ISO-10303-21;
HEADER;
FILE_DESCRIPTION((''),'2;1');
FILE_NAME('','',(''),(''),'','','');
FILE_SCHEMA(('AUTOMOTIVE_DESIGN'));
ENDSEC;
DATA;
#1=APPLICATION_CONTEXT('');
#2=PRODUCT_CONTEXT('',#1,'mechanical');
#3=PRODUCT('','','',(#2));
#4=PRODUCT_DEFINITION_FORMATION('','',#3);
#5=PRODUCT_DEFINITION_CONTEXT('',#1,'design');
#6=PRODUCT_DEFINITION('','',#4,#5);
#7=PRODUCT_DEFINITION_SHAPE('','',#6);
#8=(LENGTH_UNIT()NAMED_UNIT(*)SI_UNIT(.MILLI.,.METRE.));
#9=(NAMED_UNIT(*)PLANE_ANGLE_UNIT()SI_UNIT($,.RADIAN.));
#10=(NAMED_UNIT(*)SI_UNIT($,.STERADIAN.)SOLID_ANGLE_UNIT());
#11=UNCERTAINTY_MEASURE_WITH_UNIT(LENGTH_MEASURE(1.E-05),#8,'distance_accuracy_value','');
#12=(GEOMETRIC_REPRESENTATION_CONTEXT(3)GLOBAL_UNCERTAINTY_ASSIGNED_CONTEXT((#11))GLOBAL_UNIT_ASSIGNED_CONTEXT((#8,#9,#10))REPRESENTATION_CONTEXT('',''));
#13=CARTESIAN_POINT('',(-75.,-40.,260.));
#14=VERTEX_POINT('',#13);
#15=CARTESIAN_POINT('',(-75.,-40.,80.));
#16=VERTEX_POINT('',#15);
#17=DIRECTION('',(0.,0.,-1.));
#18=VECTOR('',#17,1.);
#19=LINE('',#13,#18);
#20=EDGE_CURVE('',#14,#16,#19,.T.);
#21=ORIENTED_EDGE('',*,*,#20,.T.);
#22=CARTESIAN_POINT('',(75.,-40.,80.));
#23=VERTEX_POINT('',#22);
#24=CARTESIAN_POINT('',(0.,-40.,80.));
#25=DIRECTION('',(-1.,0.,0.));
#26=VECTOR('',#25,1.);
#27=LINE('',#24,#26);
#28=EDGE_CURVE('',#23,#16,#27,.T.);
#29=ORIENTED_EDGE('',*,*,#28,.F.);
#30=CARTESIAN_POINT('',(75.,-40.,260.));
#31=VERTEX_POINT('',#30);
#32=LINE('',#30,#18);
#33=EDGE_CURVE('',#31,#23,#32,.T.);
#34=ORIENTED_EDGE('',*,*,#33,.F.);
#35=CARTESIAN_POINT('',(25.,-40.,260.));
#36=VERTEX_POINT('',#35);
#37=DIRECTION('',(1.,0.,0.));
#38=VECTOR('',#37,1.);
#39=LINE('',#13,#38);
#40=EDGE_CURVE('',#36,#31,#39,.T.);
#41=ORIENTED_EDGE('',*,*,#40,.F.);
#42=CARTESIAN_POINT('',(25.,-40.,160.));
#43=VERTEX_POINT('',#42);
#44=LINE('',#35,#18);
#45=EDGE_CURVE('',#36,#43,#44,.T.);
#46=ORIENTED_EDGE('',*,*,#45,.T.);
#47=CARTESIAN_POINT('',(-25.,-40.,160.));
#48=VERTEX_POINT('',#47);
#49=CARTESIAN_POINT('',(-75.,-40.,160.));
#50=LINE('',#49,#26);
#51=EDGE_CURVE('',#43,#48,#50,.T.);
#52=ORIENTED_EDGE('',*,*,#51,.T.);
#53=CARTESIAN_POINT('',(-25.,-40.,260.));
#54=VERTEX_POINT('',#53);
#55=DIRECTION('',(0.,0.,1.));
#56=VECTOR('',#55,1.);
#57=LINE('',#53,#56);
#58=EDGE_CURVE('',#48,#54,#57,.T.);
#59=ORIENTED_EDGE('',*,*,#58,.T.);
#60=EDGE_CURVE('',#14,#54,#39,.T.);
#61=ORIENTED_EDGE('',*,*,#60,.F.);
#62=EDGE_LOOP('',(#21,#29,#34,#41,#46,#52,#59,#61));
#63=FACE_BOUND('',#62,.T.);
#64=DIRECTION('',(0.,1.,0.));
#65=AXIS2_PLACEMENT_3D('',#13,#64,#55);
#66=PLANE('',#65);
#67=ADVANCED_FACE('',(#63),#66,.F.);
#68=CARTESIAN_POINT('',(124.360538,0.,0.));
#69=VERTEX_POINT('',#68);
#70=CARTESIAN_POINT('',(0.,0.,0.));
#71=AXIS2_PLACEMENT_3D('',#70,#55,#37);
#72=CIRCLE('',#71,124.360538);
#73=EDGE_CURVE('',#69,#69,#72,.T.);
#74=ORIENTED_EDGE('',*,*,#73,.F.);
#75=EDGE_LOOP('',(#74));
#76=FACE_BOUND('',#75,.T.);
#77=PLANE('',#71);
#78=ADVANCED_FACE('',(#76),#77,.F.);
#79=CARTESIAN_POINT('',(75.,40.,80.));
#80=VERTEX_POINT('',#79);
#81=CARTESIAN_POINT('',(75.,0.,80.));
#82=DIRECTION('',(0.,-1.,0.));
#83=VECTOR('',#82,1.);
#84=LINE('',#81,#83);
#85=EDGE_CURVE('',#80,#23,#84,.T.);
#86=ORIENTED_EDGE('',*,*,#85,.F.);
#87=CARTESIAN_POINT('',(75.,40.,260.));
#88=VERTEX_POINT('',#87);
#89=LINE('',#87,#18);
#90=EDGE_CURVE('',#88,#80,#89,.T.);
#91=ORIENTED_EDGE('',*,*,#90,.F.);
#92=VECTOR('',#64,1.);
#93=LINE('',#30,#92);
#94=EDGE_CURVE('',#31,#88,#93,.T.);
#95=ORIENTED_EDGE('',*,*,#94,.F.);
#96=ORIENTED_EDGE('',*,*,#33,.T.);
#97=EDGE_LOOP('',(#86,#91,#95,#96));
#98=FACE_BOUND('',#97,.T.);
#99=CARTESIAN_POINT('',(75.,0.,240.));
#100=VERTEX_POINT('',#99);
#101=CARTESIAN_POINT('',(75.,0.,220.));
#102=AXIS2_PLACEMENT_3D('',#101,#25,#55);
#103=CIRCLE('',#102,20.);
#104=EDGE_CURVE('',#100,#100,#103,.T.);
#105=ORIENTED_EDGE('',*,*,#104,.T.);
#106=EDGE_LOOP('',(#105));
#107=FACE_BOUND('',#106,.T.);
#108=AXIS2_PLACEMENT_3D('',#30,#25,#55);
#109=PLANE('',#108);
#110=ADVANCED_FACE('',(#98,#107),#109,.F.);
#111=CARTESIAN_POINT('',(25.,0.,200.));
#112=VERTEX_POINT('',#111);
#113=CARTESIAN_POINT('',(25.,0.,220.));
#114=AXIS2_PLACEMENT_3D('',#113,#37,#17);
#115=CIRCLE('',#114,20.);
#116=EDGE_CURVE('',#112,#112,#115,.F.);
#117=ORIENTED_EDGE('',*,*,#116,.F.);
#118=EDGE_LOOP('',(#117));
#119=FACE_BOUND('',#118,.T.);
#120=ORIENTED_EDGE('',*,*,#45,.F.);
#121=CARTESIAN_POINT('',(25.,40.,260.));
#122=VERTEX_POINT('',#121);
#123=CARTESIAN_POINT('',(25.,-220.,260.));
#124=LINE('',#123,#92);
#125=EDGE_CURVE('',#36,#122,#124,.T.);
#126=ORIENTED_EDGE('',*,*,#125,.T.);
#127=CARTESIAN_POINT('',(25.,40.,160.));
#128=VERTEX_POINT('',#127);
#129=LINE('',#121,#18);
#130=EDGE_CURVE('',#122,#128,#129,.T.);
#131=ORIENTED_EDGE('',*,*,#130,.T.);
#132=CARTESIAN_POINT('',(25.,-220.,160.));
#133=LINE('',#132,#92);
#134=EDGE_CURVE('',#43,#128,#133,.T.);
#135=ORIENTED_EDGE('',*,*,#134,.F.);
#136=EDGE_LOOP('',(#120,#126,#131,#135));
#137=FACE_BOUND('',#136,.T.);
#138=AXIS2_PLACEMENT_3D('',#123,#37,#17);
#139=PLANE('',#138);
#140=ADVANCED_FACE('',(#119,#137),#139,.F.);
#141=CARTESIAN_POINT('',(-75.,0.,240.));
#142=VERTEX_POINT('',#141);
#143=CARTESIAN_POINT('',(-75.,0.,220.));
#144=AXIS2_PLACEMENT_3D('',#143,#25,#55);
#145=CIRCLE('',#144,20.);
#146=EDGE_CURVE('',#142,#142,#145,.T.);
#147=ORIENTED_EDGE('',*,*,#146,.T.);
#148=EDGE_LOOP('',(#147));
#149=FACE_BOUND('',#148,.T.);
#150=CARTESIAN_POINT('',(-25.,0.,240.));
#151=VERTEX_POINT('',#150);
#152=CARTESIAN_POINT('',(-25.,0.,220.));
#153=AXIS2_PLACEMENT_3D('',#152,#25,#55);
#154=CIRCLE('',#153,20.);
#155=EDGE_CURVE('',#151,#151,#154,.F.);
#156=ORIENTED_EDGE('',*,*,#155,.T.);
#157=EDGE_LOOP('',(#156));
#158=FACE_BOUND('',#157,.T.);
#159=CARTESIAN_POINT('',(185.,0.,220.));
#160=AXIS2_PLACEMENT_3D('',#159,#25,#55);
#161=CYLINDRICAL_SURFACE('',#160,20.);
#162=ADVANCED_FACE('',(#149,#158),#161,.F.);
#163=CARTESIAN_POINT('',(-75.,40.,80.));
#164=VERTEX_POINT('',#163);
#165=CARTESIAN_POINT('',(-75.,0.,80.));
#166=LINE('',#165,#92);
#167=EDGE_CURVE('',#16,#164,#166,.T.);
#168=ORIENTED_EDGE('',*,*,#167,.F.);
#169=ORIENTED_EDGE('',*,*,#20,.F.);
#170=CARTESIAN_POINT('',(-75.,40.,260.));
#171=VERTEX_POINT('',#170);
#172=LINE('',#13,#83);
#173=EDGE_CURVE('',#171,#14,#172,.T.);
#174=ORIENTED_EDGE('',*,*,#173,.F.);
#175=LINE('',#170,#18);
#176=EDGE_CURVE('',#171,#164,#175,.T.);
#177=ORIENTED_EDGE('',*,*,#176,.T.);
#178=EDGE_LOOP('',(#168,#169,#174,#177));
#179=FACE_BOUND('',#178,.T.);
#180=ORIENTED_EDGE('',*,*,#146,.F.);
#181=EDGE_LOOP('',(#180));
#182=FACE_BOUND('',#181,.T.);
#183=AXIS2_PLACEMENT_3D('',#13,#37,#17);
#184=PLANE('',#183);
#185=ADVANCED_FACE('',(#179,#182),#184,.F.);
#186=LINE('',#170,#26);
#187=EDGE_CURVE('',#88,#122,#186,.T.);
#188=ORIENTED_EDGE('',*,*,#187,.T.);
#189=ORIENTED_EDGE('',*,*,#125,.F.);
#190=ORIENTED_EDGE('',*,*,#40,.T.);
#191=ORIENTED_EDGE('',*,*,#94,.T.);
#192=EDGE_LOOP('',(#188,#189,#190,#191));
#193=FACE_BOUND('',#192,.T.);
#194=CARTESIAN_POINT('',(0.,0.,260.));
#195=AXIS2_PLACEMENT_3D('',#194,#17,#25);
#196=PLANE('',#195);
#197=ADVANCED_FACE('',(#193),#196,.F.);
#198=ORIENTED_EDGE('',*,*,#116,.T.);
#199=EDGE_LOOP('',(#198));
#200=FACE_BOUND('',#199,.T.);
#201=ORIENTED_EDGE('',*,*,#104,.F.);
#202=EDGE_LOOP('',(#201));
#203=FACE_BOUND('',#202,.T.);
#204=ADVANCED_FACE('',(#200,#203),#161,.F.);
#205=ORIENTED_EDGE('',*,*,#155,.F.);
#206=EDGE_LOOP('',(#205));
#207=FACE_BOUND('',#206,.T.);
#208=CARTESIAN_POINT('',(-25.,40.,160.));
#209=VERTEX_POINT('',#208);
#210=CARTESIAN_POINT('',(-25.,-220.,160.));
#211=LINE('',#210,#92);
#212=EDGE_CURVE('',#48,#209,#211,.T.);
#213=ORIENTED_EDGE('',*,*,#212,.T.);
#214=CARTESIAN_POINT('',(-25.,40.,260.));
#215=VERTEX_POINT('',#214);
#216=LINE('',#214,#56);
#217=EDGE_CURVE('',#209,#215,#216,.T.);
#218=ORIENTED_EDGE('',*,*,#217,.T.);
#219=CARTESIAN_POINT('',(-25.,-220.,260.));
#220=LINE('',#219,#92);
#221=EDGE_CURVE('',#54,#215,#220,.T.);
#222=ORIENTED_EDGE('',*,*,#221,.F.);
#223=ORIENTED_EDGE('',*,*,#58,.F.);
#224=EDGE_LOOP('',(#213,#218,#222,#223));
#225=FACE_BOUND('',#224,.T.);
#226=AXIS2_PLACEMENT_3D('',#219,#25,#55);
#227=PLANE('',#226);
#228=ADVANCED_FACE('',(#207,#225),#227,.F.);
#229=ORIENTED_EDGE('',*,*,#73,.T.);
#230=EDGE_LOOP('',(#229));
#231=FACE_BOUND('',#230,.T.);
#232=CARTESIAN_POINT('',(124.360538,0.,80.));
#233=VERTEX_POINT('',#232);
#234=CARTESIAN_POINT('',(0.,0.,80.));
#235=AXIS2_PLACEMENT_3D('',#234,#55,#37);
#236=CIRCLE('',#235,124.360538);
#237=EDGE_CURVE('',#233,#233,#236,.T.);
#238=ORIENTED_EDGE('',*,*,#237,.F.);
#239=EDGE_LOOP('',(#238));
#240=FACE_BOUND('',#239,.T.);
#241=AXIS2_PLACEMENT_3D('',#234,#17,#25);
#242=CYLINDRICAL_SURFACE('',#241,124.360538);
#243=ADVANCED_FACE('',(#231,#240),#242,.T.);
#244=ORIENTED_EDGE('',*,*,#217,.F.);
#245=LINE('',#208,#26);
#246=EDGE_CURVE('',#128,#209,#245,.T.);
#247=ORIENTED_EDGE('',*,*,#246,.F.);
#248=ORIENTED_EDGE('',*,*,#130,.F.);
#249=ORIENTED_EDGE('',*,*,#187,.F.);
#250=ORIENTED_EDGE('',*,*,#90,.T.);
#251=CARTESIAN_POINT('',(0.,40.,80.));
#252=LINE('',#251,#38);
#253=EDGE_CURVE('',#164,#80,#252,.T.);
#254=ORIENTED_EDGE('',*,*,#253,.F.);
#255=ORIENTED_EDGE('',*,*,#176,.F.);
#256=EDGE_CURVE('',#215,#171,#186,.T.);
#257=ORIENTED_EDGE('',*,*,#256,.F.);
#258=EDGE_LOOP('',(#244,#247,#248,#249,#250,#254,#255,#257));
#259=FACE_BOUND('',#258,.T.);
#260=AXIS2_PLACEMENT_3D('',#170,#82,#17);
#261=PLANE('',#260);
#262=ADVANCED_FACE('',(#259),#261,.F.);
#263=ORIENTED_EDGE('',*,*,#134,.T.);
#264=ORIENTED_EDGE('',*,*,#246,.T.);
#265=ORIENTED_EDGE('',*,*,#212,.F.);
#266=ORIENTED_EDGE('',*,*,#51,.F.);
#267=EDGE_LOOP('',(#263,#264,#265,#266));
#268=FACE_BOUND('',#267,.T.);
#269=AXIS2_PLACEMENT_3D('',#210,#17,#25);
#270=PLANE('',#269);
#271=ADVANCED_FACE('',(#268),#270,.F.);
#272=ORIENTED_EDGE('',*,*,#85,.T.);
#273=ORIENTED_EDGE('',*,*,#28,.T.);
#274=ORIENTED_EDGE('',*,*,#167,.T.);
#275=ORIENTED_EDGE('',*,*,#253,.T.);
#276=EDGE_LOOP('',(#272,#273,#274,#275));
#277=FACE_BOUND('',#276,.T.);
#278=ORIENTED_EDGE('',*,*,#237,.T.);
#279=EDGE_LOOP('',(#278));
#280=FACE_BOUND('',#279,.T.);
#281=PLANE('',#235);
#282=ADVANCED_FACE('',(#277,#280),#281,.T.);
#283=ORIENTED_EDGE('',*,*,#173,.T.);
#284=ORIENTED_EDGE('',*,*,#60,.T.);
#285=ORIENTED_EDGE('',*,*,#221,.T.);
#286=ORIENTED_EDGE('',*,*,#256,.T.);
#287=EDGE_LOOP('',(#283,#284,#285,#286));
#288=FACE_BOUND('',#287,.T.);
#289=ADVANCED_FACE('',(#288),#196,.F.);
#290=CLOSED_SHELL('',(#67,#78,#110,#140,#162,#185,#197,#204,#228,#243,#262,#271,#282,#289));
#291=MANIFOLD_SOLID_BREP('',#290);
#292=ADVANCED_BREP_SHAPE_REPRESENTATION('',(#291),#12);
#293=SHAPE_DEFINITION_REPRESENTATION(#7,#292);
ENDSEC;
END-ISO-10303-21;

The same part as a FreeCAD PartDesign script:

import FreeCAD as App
import Part
import Sketcher
Q = App.Units.Quantity

doc = App.newDocument("Part")
body = doc.addObject("PartDesign::Body", "Body")

sketch1 = body.newObject("Sketcher::SketchObject", "Sketch")
sketch1.AttachmentSupport = (doc.getObject("XY_Plane"), [""])
sketch1.MapMode = "FlatFace"
sketch1.addGeometry(Part.Circle(App.Vector(0, 0, 0), App.Vector(0, 0, 1), 124), False)
sketch1.addConstraint(Sketcher.Constraint("Coincident", 0, 3, -1, 1))
sketch1.addConstraint(Sketcher.Constraint("Diameter", 0, Q("248.721076 mm")))
pad1 = body.newObject("PartDesign::Pad", "Pad")
pad1.Profile = sketch1
pad1.Length = 80

sketch2 = body.newObject("Sketcher::SketchObject", "Sketch001")
sketch2.AttachmentSupport = (doc.getObject("XY_Plane"), [""])
sketch2.MapMode = "FlatFace"
sketch2.addGeometry(Part.LineSegment(App.Vector(-75, 40, 0), App.Vector(-75, -40, 0)), False)
sketch2.addGeometry(Part.LineSegment(App.Vector(-75, -40, 0), App.Vector(75, -40, 0)), False)
sketch2.addGeometry(Part.LineSegment(App.Vector(75, -40, 0), App.Vector(75, 40, 0)), False)
sketch2.addGeometry(Part.LineSegment(App.Vector(75, 40, 0), App.Vector(-75, 40, 0)), False)
sketch2.addConstraint(Sketcher.Constraint("Coincident", 0, 2, 1, 1))
sketch2.addConstraint(Sketcher.Constraint("Coincident", 1, 2, 2, 1))
sketch2.addConstraint(Sketcher.Constraint("Coincident", 2, 2, 3, 1))
sketch2.addConstraint(Sketcher.Constraint("Coincident", 3, 2, 0, 1))
sketch2.addConstraint(Sketcher.Constraint("Vertical", 0))
sketch2.addConstraint(Sketcher.Constraint("Horizontal", 1))
sketch2.addConstraint(Sketcher.Constraint("Vertical", 2))
sketch2.addConstraint(Sketcher.Constraint("Horizontal", 3))
sketch2.addConstraint(Sketcher.Constraint("Symmetric", 0, 2, 2, 2, -1, 1))
sketch2.addConstraint(Sketcher.Constraint("DistanceX", 1, 1, 1, 2, Q("150 mm")))
sketch2.addConstraint(Sketcher.Constraint("DistanceY", 0, 2, 0, 1, Q("80 mm")))
pad2 = body.newObject("PartDesign::Pad", "Pad001")
pad2.Profile = sketch2
pad2.Length = 260

sketch3 = body.newObject("Sketcher::SketchObject", "Sketch002")
sketch3.AttachmentSupport = (doc.getObject("YZ_Plane"), [""])
sketch3.MapMode = "FlatFace"
sketch3.AttachmentOffset = App.Placement(App.Vector(0, 0, -75), App.Rotation())
sketch3.addGeometry(Part.Circle(App.Vector(0, 220, 0), App.Vector(0, 0, 1), 20), False)
sketch3.addConstraint(Sketcher.Constraint("PointOnObject", 0, 3, -2))
sketch3.addConstraint(Sketcher.Constraint("Diameter", 0, Q("40 mm")))
sketch3.addConstraint(Sketcher.Constraint("DistanceY", -1, 1, 0, 3, Q("220 mm")))
pocket1 = body.newObject("PartDesign::Pocket", "Pocket")
pocket1.Profile = sketch3
pocket1.Length = 260
pocket1.Reversed = True

sketch4 = body.newObject("Sketcher::SketchObject", "Sketch003")
sketch4.AttachmentSupport = (doc.getObject("XZ_Plane"), [""])
sketch4.MapMode = "FlatFace"
sketch4.AttachmentOffset = App.Placement(App.Vector(0, 0, -40), App.Rotation())
sketch4.addGeometry(Part.LineSegment(App.Vector(-25, 160, 0), App.Vector(-25, 260, 0)), False)
sketch4.addGeometry(Part.LineSegment(App.Vector(-25, 260, 0), App.Vector(25, 260, 0)), False)
sketch4.addGeometry(Part.LineSegment(App.Vector(25, 260, 0), App.Vector(25, 160, 0)), False)
sketch4.addGeometry(Part.LineSegment(App.Vector(25, 160, 0), App.Vector(-25, 160, 0)), False)
sketch4.addConstraint(Sketcher.Constraint("Coincident", 0, 2, 1, 1))
sketch4.addConstraint(Sketcher.Constraint("Coincident", 1, 2, 2, 1))
sketch4.addConstraint(Sketcher.Constraint("Coincident", 2, 2, 3, 1))
sketch4.addConstraint(Sketcher.Constraint("Coincident", 3, 2, 0, 1))
sketch4.addConstraint(Sketcher.Constraint("Vertical", 0))
sketch4.addConstraint(Sketcher.Constraint("Horizontal", 1))
sketch4.addConstraint(Sketcher.Constraint("Vertical", 2))
sketch4.addConstraint(Sketcher.Constraint("Horizontal", 3))
sketch4.addConstraint(Sketcher.Constraint("DistanceX", 1, 1, 1, 2, Q("50 mm")))
sketch4.addConstraint(Sketcher.Constraint("DistanceY", 0, 1, 0, 2, Q("100 mm")))
sketch4.addConstraint(Sketcher.Constraint("DistanceX", 0, 2, -1, 1, Q("25 mm")))
sketch4.addConstraint(Sketcher.Constraint("DistanceY", -1, 1, 0, 2, Q("260 mm")))
pocket2 = body.newObject("PartDesign::Pocket", "Pocket001")
pocket2.Profile = sketch4
pocket2.Length = 260
pocket2.Reversed = True

doc.recompute()
